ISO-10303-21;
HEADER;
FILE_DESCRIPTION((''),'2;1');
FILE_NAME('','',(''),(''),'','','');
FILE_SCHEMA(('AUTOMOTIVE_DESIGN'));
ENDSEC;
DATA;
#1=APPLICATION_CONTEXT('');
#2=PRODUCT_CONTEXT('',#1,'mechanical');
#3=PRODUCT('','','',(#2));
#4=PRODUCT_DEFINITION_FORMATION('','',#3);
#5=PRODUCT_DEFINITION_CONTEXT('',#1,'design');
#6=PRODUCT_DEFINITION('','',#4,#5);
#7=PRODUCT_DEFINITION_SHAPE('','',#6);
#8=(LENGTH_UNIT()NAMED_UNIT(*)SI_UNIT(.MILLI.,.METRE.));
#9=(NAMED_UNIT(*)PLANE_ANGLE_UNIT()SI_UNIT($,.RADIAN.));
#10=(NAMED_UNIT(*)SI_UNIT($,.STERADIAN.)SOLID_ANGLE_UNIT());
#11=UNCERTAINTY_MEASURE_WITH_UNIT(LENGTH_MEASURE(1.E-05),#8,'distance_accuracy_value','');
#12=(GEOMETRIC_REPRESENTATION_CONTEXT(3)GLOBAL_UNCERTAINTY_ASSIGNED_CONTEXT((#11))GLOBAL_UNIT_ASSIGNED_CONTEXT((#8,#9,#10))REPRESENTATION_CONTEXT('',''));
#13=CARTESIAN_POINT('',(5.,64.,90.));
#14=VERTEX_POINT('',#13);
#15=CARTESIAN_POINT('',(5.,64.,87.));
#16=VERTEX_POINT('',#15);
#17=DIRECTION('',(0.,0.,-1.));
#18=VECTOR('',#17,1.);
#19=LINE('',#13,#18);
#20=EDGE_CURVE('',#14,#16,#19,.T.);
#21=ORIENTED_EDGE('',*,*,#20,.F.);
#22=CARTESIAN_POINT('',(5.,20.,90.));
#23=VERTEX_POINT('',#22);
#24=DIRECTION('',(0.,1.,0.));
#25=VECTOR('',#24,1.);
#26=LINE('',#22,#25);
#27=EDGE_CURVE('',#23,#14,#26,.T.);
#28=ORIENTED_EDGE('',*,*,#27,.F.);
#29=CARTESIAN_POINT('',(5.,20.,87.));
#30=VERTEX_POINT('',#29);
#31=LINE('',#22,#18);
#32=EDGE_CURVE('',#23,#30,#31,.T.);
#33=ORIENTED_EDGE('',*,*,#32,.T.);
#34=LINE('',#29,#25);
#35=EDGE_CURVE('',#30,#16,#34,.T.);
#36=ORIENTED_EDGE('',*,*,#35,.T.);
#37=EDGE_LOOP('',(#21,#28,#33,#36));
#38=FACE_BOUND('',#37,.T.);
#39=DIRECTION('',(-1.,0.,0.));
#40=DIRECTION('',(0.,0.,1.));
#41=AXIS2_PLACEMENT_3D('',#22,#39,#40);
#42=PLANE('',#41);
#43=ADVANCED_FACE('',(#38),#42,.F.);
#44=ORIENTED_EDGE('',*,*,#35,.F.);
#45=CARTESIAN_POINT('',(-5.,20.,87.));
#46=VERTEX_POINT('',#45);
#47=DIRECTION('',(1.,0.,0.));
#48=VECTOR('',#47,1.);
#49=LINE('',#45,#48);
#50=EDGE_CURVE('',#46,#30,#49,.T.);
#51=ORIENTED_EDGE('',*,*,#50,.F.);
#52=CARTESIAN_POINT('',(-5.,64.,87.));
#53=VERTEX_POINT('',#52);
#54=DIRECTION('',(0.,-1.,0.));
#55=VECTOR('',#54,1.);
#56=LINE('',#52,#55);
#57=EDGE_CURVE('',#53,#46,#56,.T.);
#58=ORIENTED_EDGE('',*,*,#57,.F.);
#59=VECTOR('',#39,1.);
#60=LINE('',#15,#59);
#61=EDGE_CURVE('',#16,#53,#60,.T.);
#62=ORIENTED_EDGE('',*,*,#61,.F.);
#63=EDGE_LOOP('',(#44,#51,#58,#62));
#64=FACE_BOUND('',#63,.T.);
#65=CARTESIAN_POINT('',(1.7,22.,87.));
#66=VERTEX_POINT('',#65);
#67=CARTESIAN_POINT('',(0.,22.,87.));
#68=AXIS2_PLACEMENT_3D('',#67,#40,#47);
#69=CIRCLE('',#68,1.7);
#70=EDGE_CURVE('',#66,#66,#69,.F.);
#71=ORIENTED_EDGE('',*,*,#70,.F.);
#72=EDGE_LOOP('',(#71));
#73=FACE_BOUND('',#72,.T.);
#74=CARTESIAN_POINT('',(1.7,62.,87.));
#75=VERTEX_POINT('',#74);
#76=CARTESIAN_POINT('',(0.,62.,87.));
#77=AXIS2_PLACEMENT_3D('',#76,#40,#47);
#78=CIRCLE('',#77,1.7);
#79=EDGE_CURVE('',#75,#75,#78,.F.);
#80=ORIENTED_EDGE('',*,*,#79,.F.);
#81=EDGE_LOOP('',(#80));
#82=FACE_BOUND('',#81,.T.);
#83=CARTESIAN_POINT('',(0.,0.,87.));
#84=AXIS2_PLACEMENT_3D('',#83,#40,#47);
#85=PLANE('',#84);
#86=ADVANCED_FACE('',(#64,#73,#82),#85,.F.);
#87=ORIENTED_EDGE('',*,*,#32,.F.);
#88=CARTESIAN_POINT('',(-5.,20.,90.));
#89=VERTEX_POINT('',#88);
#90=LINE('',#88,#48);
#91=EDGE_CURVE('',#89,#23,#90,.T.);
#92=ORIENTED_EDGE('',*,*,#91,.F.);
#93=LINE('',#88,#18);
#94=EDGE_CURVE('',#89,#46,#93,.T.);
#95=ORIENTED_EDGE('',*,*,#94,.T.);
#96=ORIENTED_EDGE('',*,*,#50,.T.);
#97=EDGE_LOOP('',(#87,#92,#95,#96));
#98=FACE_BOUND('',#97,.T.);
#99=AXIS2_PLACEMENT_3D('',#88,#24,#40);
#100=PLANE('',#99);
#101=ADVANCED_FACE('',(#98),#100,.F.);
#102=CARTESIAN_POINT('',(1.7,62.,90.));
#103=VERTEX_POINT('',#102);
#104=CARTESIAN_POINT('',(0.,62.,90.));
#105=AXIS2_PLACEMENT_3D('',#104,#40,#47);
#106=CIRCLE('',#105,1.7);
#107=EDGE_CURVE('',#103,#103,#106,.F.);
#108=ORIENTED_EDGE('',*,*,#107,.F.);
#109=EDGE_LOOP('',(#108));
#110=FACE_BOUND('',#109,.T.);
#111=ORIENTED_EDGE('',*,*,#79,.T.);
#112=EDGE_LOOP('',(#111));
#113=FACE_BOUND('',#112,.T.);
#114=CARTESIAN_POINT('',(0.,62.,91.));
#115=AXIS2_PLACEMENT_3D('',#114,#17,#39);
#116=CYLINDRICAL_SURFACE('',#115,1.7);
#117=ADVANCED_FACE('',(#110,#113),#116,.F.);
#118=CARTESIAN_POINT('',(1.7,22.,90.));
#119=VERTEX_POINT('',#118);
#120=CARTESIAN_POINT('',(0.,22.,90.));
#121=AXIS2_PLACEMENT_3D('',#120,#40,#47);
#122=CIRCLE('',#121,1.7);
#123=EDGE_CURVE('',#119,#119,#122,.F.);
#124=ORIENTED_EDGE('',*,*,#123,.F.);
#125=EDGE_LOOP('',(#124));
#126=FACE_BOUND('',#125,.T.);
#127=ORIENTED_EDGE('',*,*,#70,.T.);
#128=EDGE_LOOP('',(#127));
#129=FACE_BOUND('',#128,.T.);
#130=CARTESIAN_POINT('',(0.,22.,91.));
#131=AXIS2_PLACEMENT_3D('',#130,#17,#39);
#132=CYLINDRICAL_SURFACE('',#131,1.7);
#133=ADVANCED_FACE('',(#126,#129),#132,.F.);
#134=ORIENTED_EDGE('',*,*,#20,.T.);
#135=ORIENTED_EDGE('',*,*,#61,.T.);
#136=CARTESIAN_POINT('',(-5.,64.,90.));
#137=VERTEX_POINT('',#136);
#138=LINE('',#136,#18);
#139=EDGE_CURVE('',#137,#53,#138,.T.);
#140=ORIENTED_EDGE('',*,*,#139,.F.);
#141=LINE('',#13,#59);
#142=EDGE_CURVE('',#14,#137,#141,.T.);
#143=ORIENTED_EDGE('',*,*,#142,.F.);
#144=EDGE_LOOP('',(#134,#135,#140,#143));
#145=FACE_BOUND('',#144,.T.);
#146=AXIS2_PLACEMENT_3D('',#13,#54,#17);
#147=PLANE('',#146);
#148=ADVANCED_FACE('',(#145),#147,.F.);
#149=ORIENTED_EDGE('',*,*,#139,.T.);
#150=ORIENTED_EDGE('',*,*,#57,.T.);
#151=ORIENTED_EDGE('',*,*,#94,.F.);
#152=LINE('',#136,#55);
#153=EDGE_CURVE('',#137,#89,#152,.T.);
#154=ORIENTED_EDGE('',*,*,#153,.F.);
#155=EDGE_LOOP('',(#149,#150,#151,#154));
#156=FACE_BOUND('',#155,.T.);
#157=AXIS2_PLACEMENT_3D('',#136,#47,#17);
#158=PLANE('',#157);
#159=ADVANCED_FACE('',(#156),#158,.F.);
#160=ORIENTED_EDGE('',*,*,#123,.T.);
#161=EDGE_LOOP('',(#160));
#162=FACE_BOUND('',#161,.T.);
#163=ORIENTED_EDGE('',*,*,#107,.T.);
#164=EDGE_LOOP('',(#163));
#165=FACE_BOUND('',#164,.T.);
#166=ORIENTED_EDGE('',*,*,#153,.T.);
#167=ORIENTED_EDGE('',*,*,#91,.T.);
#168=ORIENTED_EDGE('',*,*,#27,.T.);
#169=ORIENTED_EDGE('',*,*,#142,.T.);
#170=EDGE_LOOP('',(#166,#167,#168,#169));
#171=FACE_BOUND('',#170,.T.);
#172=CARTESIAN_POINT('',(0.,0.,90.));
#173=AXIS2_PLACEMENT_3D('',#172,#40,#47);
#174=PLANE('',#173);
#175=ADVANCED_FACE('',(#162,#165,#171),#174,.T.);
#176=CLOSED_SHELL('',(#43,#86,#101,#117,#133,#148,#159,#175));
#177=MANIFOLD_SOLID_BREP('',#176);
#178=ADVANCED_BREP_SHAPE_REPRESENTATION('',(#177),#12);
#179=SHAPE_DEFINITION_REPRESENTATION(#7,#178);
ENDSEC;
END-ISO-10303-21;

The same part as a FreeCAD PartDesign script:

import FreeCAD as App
import Part
import Sketcher

V = App.Vector
Q = App.Units.Quantity


def add_polygon(sketch, points):
    """Adds a closed chain of lines whose ends are joined by coincident constraints."""
    first, n = sketch.GeometryCount, len(points)
    for a, b in zip(points, points[1:] + points[:1]):
        sketch.addGeometry(Part.LineSegment(App.Vector(*a, 0), App.Vector(*b, 0)), False)
    for i in range(n):
        sketch.addConstraint(Sketcher.Constraint("Coincident", first + i, 2, first + (i + 1) % n, 1))

doc = App.newDocument("Part")
body = doc.addObject("PartDesign::Body", "Body")

# Sketch on XY plane
sketch1 = doc.addObject("Sketcher::SketchObject", "Sketch")
body.addObject(sketch1)
sketch1.AttachmentSupport = (doc.XY_Plane, [""])
sketch1.MapMode = "FlatFace"
sketch1.AttachmentOffset = App.Placement(V(0, 0, 87), App.Rotation())
add_polygon(sketch1, [(-5, 64), (-5, 20), (5, 20), (5, 64)])  # lines 0-3
sketch1.addConstraint([
    Sketcher.Constraint("Vertical", 0),
    Sketcher.Constraint("Horizontal", 1),
    Sketcher.Constraint("Vertical", 2),
    Sketcher.Constraint("Horizontal", 3),
    Sketcher.Constraint("DistanceX", 1, 1, 1, 2, Q("10 mm")),
    Sketcher.Constraint("DistanceY", 0, 2, 0, 1, Q("44 mm")),
    Sketcher.Constraint("DistanceX", 0, 2, -1, 1, Q("5 mm")),
    Sketcher.Constraint("DistanceY", -1, 1, 0, 2, Q("20 mm")),
])
pad1 = doc.addObject("PartDesign::Pad", "Pad")
body.addObject(pad1)
pad1.Profile = sketch1
pad1.Length = 3

# Sketch on XY plane
sketch2 = doc.addObject("Sketcher::SketchObject", "Sketch001")
body.addObject(sketch2)
sketch2.AttachmentSupport = (doc.XY_Plane, [""])
sketch2.MapMode = "FlatFace"
sketch2.AttachmentOffset = App.Placement(V(0, 0, 86), App.Rotation())
sketch2.addGeometry([
    Part.Circle(V(0, 62, 0), V(0, 0, 1), 1.7),
    Part.Circle(V(0, 22, 0), V(0, 0, 1), 1.7),
], False)
sketch2.addConstraint([
    Sketcher.Constraint("Equal", 0, 1),
    Sketcher.Constraint("PointOnObject", 0, 3, -2),
    Sketcher.Constraint("PointOnObject", 1, 3, -2),
    Sketcher.Constraint("Diameter", 0, Q("3.4 mm")),
    Sketcher.Constraint("DistanceY", -1, 1, 0, 3, Q("62 mm")),
    Sketcher.Constraint("DistanceY", -1, 1, 1, 3, Q("22 mm")),
])
pocket1 = doc.addObject("PartDesign::Pocket", "Pocket")
body.addObject(pocket1)
pocket1.Profile = sketch2
pocket1.Length = 5
pocket1.Reversed = True

doc.recompute()
